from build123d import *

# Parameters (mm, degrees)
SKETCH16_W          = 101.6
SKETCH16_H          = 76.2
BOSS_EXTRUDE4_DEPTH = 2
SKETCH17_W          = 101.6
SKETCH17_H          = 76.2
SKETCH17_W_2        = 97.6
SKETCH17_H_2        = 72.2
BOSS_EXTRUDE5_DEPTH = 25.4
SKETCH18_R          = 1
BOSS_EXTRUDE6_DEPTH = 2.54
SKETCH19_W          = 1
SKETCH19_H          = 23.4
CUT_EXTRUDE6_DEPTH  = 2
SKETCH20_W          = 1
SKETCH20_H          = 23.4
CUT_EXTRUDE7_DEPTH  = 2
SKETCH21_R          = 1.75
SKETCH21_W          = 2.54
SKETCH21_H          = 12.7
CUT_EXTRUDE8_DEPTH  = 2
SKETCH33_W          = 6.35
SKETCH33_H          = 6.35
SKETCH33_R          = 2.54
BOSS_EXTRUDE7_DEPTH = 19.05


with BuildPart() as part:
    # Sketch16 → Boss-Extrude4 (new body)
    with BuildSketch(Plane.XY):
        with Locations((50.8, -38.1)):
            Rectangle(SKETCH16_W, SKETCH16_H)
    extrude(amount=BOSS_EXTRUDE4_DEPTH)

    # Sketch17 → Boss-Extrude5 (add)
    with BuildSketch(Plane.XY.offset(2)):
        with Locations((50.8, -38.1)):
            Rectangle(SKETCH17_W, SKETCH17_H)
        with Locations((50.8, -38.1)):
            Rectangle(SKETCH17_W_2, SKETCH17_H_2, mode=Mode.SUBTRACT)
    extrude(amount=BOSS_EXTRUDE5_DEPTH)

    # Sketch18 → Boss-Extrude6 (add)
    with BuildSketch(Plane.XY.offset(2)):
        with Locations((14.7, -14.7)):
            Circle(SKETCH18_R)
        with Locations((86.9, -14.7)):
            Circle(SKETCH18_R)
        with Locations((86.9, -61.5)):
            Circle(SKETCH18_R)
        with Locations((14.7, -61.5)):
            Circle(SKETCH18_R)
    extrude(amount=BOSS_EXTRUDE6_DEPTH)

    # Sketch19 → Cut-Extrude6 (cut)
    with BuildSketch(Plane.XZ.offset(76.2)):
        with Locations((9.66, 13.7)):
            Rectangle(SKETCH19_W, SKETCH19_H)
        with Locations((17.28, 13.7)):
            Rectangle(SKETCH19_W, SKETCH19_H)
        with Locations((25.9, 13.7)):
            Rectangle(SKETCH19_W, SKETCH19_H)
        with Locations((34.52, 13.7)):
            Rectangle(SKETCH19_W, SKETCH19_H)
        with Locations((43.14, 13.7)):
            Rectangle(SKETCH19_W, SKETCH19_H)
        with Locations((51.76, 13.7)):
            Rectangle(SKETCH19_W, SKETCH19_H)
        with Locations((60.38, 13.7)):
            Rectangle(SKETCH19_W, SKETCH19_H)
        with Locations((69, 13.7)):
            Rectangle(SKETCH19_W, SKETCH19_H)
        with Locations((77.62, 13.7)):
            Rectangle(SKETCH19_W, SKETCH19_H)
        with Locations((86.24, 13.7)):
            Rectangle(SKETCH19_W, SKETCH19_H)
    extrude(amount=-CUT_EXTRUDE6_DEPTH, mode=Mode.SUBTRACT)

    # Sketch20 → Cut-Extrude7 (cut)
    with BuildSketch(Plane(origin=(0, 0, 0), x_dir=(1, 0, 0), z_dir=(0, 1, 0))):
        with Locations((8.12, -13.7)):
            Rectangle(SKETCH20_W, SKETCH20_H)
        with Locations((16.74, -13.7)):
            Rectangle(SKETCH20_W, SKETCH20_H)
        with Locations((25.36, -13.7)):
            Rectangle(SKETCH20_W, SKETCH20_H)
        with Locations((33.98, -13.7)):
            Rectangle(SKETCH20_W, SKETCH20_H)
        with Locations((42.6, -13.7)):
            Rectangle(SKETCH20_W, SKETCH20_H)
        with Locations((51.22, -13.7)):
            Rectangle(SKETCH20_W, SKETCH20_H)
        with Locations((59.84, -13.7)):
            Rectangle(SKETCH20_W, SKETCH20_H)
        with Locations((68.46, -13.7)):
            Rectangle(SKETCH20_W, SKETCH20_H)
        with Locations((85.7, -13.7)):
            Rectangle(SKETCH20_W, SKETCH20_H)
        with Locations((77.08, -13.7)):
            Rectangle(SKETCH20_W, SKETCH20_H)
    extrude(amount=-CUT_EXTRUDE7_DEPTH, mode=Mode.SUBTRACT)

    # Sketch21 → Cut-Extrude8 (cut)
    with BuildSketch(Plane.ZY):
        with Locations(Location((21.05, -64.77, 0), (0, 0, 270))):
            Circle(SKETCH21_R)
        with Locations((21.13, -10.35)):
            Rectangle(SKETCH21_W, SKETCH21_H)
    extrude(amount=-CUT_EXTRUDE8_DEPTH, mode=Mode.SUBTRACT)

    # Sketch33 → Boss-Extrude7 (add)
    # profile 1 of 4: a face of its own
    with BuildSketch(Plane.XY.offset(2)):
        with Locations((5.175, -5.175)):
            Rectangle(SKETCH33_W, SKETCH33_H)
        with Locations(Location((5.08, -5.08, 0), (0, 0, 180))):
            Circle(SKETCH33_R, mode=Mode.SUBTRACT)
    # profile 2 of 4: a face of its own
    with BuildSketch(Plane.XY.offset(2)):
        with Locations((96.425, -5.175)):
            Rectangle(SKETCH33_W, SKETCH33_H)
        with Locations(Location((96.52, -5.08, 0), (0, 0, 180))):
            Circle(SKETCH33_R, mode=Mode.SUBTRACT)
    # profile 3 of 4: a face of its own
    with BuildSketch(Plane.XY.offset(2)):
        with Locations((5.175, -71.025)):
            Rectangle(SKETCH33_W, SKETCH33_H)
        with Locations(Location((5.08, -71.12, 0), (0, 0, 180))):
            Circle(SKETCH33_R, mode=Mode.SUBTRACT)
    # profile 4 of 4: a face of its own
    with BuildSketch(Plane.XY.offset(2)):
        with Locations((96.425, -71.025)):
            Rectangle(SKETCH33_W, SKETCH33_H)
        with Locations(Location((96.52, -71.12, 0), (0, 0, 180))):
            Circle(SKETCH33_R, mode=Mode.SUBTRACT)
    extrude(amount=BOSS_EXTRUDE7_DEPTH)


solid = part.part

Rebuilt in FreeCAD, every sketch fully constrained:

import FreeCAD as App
import Part
import Sketcher
from FreeCAD import Vector
Q = App.Units.Quantity


def add_polygon(sketch, points):
    """Adds a closed chain of lines whose ends are joined by coincident constraints."""
    first, n = sketch.GeometryCount, len(points)
    for a, b in zip(points, points[1:] + points[:1]):
        sketch.addGeometry(Part.LineSegment(App.Vector(*a, 0), App.Vector(*b, 0)), False)
    for i in range(n):
        sketch.addConstraint(Sketcher.Constraint("Coincident", first + i, 2, first + (i + 1) % n, 1))

doc = App.newDocument("Part")
body = doc.addObject("PartDesign::Body", "Body")

# Sketch on XY plane
sketch1 = body.newObject("Sketcher::SketchObject", "Sketch")
sketch1.AttachmentSupport = (doc.getObject("XY_Plane"), [""])
sketch1.MapMode = "FlatFace"
add_polygon(sketch1, [(0, 0), (0, -76.2), (101.6, -76.2), (101.6, 0)])  # lines 0-3
sketch1.addConstraint(Sketcher.Constraint("Vertical", 0))
sketch1.addConstraint(Sketcher.Constraint("Horizontal", 1))
sketch1.addConstraint(Sketcher.Constraint("Vertical", 2))
sketch1.addConstraint(Sketcher.Constraint("Horizontal", 3))
sketch1.addConstraint(Sketcher.Constraint("Coincident", 3, 2, -1, 1))
sketch1.addConstraint(Sketcher.Constraint("DistanceX", 1, 1, 1, 2, Q("4 in")))
sketch1.addConstraint(Sketcher.Constraint("DistanceY", 0, 2, 0, 1, Q("3 in")))
pad1 = body.newObject("PartDesign::Pad", "Pad")
pad1.Profile = sketch1
pad1.Length = 2

# Sketch on XY plane
sketch2 = body.newObject("Sketcher::SketchObject", "Sketch001")
sketch2.AttachmentSupport = (doc.getObject("XY_Plane"), [""])
sketch2.MapMode = "FlatFace"
sketch2.AttachmentOffset = App.Placement(Vector(0, 0, 2), App.Rotation())
add_polygon(sketch2, [(0, 0), (0, -76.2), (101.6, -76.2), (101.6, 0)])  # lines 0-3
add_polygon(sketch2, [(99.6, -74.2), (2, -74.2), (2, -2), (99.6, -2)])  # lines 4-7
sketch2.addConstraint(Sketcher.Constraint("Vertical", 0))
sketch2.addConstraint(Sketcher.Constraint("Horizontal", 1))
sketch2.addConstraint(Sketcher.Constraint("Vertical", 2))
sketch2.addConstraint(Sketcher.Constraint("Horizontal", 3))
sketch2.addConstraint(Sketcher.Constraint("Horizontal", 4))
sketch2.addConstraint(Sketcher.Constraint("Vertical", 5))
sketch2.addConstraint(Sketcher.Constraint("Horizontal", 6))
sketch2.addConstraint(Sketcher.Constraint("Vertical", 7))
sketch2.addConstraint(Sketcher.Constraint("Coincident", 3, 2, -1, 1))
sketch2.addConstraint(Sketcher.Constraint("DistanceX", 1, 1, 1, 2, Q("4 in")))
sketch2.addConstraint(Sketcher.Constraint("DistanceY", 0, 2, 0, 1, Q("3 in")))
sketch2.addConstraint(Sketcher.Constraint("DistanceX", 4, 2, 4, 1, 97.6))
sketch2.addConstraint(Sketcher.Constraint("DistanceY", 5, 1, 5, 2, 72.2))
sketch2.addConstraint(Sketcher.Constraint("DistanceX", -1, 1, 4, 2, 2.0))
sketch2.addConstraint(Sketcher.Constraint("DistanceY", 4, 2, -1, 1, 74.2))
pad2 = body.newObject("PartDesign::Pad", "Pad001")
pad2.Profile = sketch2
pad2.Length = Q("1 in")

# Sketch on XY plane
sketch3 = body.newObject("Sketcher::SketchObject", "Sketch002")
sketch3.AttachmentSupport = (doc.getObject("XY_Plane"), [""])
sketch3.MapMode = "FlatFace"
sketch3.AttachmentOffset = App.Placement(Vector(0, 0, 2), App.Rotation())
sketch3.addGeometry(Part.Circle(Vector(14.7, -14.7, 0), Vector(0, 0, 1), 1), False)
sketch3.addGeometry(Part.Circle(Vector(86.9, -14.7, 0), Vector(0, 0, 1), 1), False)
sketch3.addGeometry(Part.Circle(Vector(86.9, -61.5, 0), Vector(0, 0, 1), 1), False)
sketch3.addGeometry(Part.Circle(Vector(14.7, -61.5, 0), Vector(0, 0, 1), 1), False)
sketch3.addConstraint(Sketcher.Constraint("Equal", 0, 1))
sketch3.addConstraint(Sketcher.Constraint("Equal", 1, 2))
sketch3.addConstraint(Sketcher.Constraint("Equal", 2, 3))
sketch3.addConstraint(Sketcher.Constraint("Horizontal", 0, 3, 1, 3))
sketch3.addConstraint(Sketcher.Constraint("Horizontal", 2, 3, 3, 3))
sketch3.addConstraint(Sketcher.Constraint("Vertical", 1, 3, 2, 3))
sketch3.addConstraint(Sketcher.Constraint("Vertical", 0, 3, 3, 3))
sketch3.addConstraint(Sketcher.Constraint("Diameter", 0, 2.0))
sketch3.addConstraint(Sketcher.Constraint("DistanceX", -1, 1, 0, 3, 14.7))
sketch3.addConstraint(Sketcher.Constraint("DistanceY", 0, 3, -1, 1, 14.7))
sketch3.addConstraint(Sketcher.Constraint("DistanceX", -1, 1, 1, 3, 86.9))
sketch3.addConstraint(Sketcher.Constraint("DistanceY", 2, 3, -1, 1, 61.5))
pad3 = body.newObject("PartDesign::Pad", "Pad002")
pad3.Profile = sketch3
pad3.Length = Q("0.1 in")

# Sketch on XZ plane
sketch4 = body.newObject("Sketcher::SketchObject", "Sketch003")
sketch4.AttachmentSupport = (doc.getObject("XZ_Plane"), [""])
sketch4.MapMode = "FlatFace"
sketch4.AttachmentOffset = App.Placement(Vector(0, 0, 3 * 25.4), App.Rotation())
add_polygon(sketch4, [(9.16, 25.4), (9.16, 2), (10.16, 2), (10.16, 25.4)])  # lines 0-3
add_polygon(sketch4, [(16.78, 25.4), (16.78, 2), (17.78, 2), (17.78, 25.4)])  # lines 4-7
add_polygon(sketch4, [(25.4, 25.4), (25.4, 2), (26.4, 2), (26.4, 25.4)])  # lines 8-11
add_polygon(sketch4, [(34.02, 25.4), (34.02, 2), (35.02, 2), (35.02, 25.4)])  # lines 12-15
add_polygon(sketch4, [(42.64, 25.4), (42.64, 2), (43.64, 2), (43.64, 25.4)])  # lines 16-19
add_polygon(sketch4, [(51.26, 25.4), (51.26, 2), (52.26, 2), (52.26, 25.4)])  # lines 20-23
add_polygon(sketch4, [(59.88, 25.4), (59.88, 2), (60.88, 2), (60.88, 25.4)])  # lines 24-27
add_polygon(sketch4, [(68.5, 25.4), (68.5, 2), (69.5, 2), (69.5, 25.4)])  # lines 28-31
add_polygon(sketch4, [(77.12, 25.4), (77.12, 2), (78.12, 2), (78.12, 25.4)])  # lines 32-35
add_polygon(sketch4, [(85.74, 25.4), (85.74, 2), (86.74, 2), (86.74, 25.4)])  # lines 36-39
sketch4.addConstraint(Sketcher.Constraint("Vertical", 0))
sketch4.addConstraint(Sketcher.Constraint("Horizontal", 1))
sketch4.addConstraint(Sketcher.Constraint("Vertical", 2))
sketch4.addConstraint(Sketcher.Constraint("Horizontal", 3))
sketch4.addConstraint(Sketcher.Constraint("Vertical", 4))
sketch4.addConstraint(Sketcher.Constraint("Horizontal", 5))
sketch4.addConstraint(Sketcher.Constraint("Vertical", 6))
sketch4.addConstraint(Sketcher.Constraint("Horizontal", 7))
sketch4.addConstraint(Sketcher.Constraint("Vertical", 8))
sketch4.addConstraint(Sketcher.Constraint("Horizontal", 9))
sketch4.addConstraint(Sketcher.Constraint("Vertical", 10))
sketch4.addConstraint(Sketcher.Constraint("Horizontal", 11))
sketch4.addConstraint(Sketcher.Constraint("Vertical", 12))
sketch4.addConstraint(Sketcher.Constraint("Horizontal", 13))
sketch4.addConstraint(Sketcher.Constraint("Vertical", 14))
sketch4.addConstraint(Sketcher.Constraint("Horizontal", 15))
sketch4.addConstraint(Sketcher.Constraint("Vertical", 16))
sketch4.addConstraint(Sketcher.Constraint("Horizontal", 17))
sketch4.addConstraint(Sketcher.Constraint("Vertical", 18))
sketch4.addConstraint(Sketcher.Constraint("Horizontal", 19))
sketch4.addConstraint(Sketcher.Constraint("Vertical", 20))
sketch4.addConstraint(Sketcher.Constraint("Horizontal", 21))
sketch4.addConstraint(Sketcher.Constraint("Vertical", 22))
sketch4.addConstraint(Sketcher.Constraint("Horizontal", 23))
sketch4.addConstraint(Sketcher.Constraint("Vertical", 24))
sketch4.addConstraint(Sketcher.Constraint("Horizontal", 25))
sketch4.addConstraint(Sketcher.Constraint("Vertical", 26))
sketch4.addConstraint(Sketcher.Constraint("Horizontal", 27))
sketch4.addConstraint(Sketcher.Constraint("Vertical", 28))
sketch4.addConstraint(Sketcher.Constraint("Horizontal", 29))
sketch4.addConstraint(Sketcher.Constraint("Vertical", 30))
sketch4.addConstraint(Sketcher.Constraint("Horizontal", 31))
sketch4.addConstraint(Sketcher.Constraint("Vertical", 32))
sketch4.addConstraint(Sketcher.Constraint("Horizontal", 33))
sketch4.addConstraint(Sketcher.Constraint("Vertical", 34))
sketch4.addConstraint(Sketcher.Constraint("Horizontal", 35))
sketch4.addConstraint(Sketcher.Constraint("Vertical", 36))
sketch4.addConstraint(Sketcher.Constraint("Horizontal", 37))
sketch4.addConstraint(Sketcher.Constraint("Vertical", 38))
sketch4.addConstraint(Sketcher.Constraint("Horizontal", 39))
sketch4.addConstraint(Sketcher.Constraint("Horizontal", 1, 2, 4, 2))
sketch4.addConstraint(Sketcher.Constraint("Horizontal", 3, 2, 6, 2))
sketch4.addConstraint(Sketcher.Constraint("Horizontal", 5, 2, 8, 2))
sketch4.addConstraint(Sketcher.Constraint("Horizontal", 7, 2, 10, 2))
sketch4.addConstraint(Sketcher.Constraint("Horizontal", 9, 2, 12, 2))
sketch4.addConstraint(Sketcher.Constraint("Horizontal", 11, 2, 14, 2))
sketch4.addConstraint(Sketcher.Constraint("Horizontal", 13, 2, 16, 2))
sketch4.addConstraint(Sketcher.Constraint("Horizontal", 15, 2, 18, 2))
sketch4.addConstraint(Sketcher.Constraint("Horizontal", 17, 2, 20, 2))
sketch4.addConstraint(Sketcher.Constraint("Horizontal", 19, 2, 22, 2))
sketch4.addConstraint(Sketcher.Constraint("Horizontal", 21, 2, 24, 2))
sketch4.addConstraint(Sketcher.Constraint("Horizontal", 23, 2, 26, 2))
sketch4.addConstraint(Sketcher.Constraint("Horizontal", 25, 2, 28, 2))
sketch4.addConstraint(Sketcher.Constraint("Horizontal", 27, 2, 30, 2))
sketch4.addConstraint(Sketcher.Constraint("Horizontal", 29, 2, 32, 2))
sketch4.addConstraint(Sketcher.Constraint("Horizontal", 31, 2, 34, 2))
sketch4.addConstraint(Sketcher.Constraint("Horizontal", 33, 2, 36, 2))
sketch4.addConstraint(Sketcher.Constraint("Horizontal", 35, 2, 38, 2))
sketch4.addConstraint(Sketcher.Constraint("Equal", 3, 5))
sketch4.addConstraint(Sketcher.Constraint("Equal", 7, 9))
sketch4.addConstraint(Sketcher.Constraint("Equal", 11, 13))
sketch4.addConstraint(Sketcher.Constraint("Equal", 15, 17))
sketch4.addConstraint(Sketcher.Constraint("Equal", 19, 21))
sketch4.addConstraint(Sketcher.Constraint("Equal", 23, 25))
sketch4.addConstraint(Sketcher.Constraint("Equal", 27, 29))
sketch4.addConstraint(Sketcher.Constraint("Equal", 31, 33))
sketch4.addConstraint(Sketcher.Constraint("Equal", 35, 37))
sketch4.addConstraint(Sketcher.Constraint("DistanceY", -1, 1, 2, 2, Q("1 in")))
sketch4.addConstraint(Sketcher.Constraint("DistanceX", -1, 1, 8, 2, Q("1 in")))
sketch4.addConstraint(Sketcher.Constraint("DistanceX", -1, 1, 1, 2, Q("0.4 in")))
sketch4.addConstraint(Sketcher.Constraint("DistanceX", -1, 1, 5, 2, Q("0.7 in")))
sketch4.addConstraint(Sketcher.Constraint("DistanceX", 9, 2, 12, 2, Q("0.3 in")))
sketch4.addConstraint(Sketcher.Constraint("DistanceX", 13, 2, 16, 2, Q("0.3 in")))
sketch4.addConstraint(Sketcher.Constraint("DistanceX", 17, 2, 20, 2, Q("0.3 in")))
sketch4.addConstraint(Sketcher.Constraint("DistanceX", 21, 2, 24, 2, Q("0.3 in")))
sketch4.addConstraint(Sketcher.Constraint("DistanceX", 25, 2, 28, 2, Q("0.3 in")))
sketch4.addConstraint(Sketcher.Constraint("DistanceX", 29, 2, 32, 2, Q("0.3 in")))
sketch4.addConstraint(Sketcher.Constraint("DistanceX", 33, 2, 36, 2, Q("0.3 in")))
sketch4.addConstraint(Sketcher.Constraint("DistanceX", 1, 1, 1, 2, 1.0))
sketch4.addConstraint(Sketcher.Constraint("DistanceY", 0, 2, 0, 1, 23.4))
pocket1 = body.newObject("PartDesign::Pocket", "Pocket")
pocket1.Profile = sketch4
pocket1.Length = 2

# Sketch on XZ plane
sketch5 = body.newObject("Sketcher::SketchObject", "Sketch004")
sketch5.AttachmentSupport = (doc.getObject("XZ_Plane"), [""])
sketch5.MapMode = "FlatFace"
add_polygon(sketch5, [(7.62, 2), (7.62, 25.4), (8.62, 25.4), (8.62, 2)])  # lines 0-3
add_polygon(sketch5, [(16.24, 2), (16.24, 25.4), (17.24, 25.4), (17.24, 2)])  # lines 4-7
add_polygon(sketch5, [(24.86, 2), (24.86, 25.4), (25.86, 25.4), (25.86, 2)])  # lines 8-11
add_polygon(sketch5, [(33.48, 2), (33.48, 25.4), (34.48, 25.4), (34.48, 2)])  # lines 12-15
add_polygon(sketch5, [(42.1, 2), (42.1, 25.4), (43.1, 25.4), (43.1, 2)])  # lines 16-19
add_polygon(sketch5, [(50.72, 2), (50.72, 25.4), (51.72, 25.4), (51.72, 2)])  # lines 20-23
add_polygon(sketch5, [(59.34, 2), (59.34, 25.4), (60.34, 25.4), (60.34, 2)])  # lines 24-27
add_polygon(sketch5, [(67.96, 2), (67.96, 25.4), (68.96, 25.4), (68.96, 2)])  # lines 28-31
add_polygon(sketch5, [(85.2, 2), (85.2, 25.4), (86.2, 25.4), (86.2, 2)])  # lines 32-35
add_polygon(sketch5, [(76.58, 2), (76.58, 25.4), (77.58, 25.4), (77.58, 2)])  # lines 36-39
sketch5.addConstraint(Sketcher.Constraint("Vertical", 0))
sketch5.addConstraint(Sketcher.Constraint("Horizontal", 1))
sketch5.addConstraint(Sketcher.Constraint("Vertical", 2))
sketch5.addConstraint(Sketcher.Constraint("Horizontal", 3))
sketch5.addConstraint(Sketcher.Constraint("Vertical", 4))
sketch5.addConstraint(Sketcher.Constraint("Horizontal", 5))
sketch5.addConstraint(Sketcher.Constraint("Vertical", 6))
sketch5.addConstraint(Sketcher.Constraint("Horizontal", 7))
sketch5.addConstraint(Sketcher.Constraint("Vertical", 8))
sketch5.addConstraint(Sketcher.Constraint("Horizontal", 9))
sketch5.addConstraint(Sketcher.Constraint("Vertical", 10))
sketch5.addConstraint(Sketcher.Constraint("Horizontal", 11))
sketch5.addConstraint(Sketcher.Constraint("Vertical", 12))
sketch5.addConstraint(Sketcher.Constraint("Horizontal", 13))
sketch5.addConstraint(Sketcher.Constraint("Vertical", 14))
sketch5.addConstraint(Sketcher.Constraint("Horizontal", 15))
sketch5.addConstraint(Sketcher.Constraint("Vertical", 16))
sketch5.addConstraint(Sketcher.Constraint("Horizontal", 17))
sketch5.addConstraint(Sketcher.Constraint("Vertical", 18))
sketch5.addConstraint(Sketcher.Constraint("Horizontal", 19))
sketch5.addConstraint(Sketcher.Constraint("Vertical", 20))
sketch5.addConstraint(Sketcher.Constraint("Horizontal", 21))
sketch5.addConstraint(Sketcher.Constraint("Vertical", 22))
sketch5.addConstraint(Sketcher.Constraint("Horizontal", 23))
sketch5.addConstraint(Sketcher.Constraint("Vertical", 24))
sketch5.addConstraint(Sketcher.Constraint("Horizontal", 25))
sketch5.addConstraint(Sketcher.Constraint("Vertical", 26))
sketch5.addConstraint(Sketcher.Constraint("Horizontal", 27))
sketch5.addConstraint(Sketcher.Constraint("Vertical", 28))
sketch5.addConstraint(Sketcher.Constraint("Horizontal", 29))
sketch5.addConstraint(Sketcher.Constraint("Vertical", 30))
sketch5.addConstraint(Sketcher.Constraint("Horizontal", 31))
sketch5.addConstraint(Sketcher.Constraint("Vertical", 32))
sketch5.addConstraint(Sketcher.Constraint("Horizontal", 33))
sketch5.addConstraint(Sketcher.Constraint("Vertical", 34))
sketch5.addConstraint(Sketcher.Constraint("Horizontal", 35))
sketch5.addConstraint(Sketcher.Constraint("Vertical", 36))
sketch5.addConstraint(Sketcher.Constraint("Horizontal", 37))
sketch5.addConstraint(Sketcher.Constraint("Vertical", 38))
sketch5.addConstraint(Sketcher.Constraint("Horizontal", 39))
sketch5.addConstraint(Sketcher.Constraint("Horizontal", 1, 2, 4, 2))
sketch5.addConstraint(Sketcher.Constraint("Horizontal", 3, 2, 6, 2))
sketch5.addConstraint(Sketcher.Constraint("Horizontal", 5, 2, 8, 2))
sketch5.addConstraint(Sketcher.Constraint("Horizontal", 7, 2, 10, 2))
sketch5.addConstraint(Sketcher.Constraint("Horizontal", 9, 2, 12, 2))
sketch5.addConstraint(Sketcher.Constraint("Horizontal", 11, 2, 14, 2))
sketch5.addConstraint(Sketcher.Constraint("Horizontal", 13, 2, 16, 2))
sketch5.addConstraint(Sketcher.Constraint("Horizontal", 15, 2, 18, 2))
sketch5.addConstraint(Sketcher.Constraint("Horizontal", 17, 2, 20, 2))
sketch5.addConstraint(Sketcher.Constraint("Horizontal", 19, 2, 22, 2))
sketch5.addConstraint(Sketcher.Constraint("Horizontal", 21, 2, 24, 2))
sketch5.addConstraint(Sketcher.Constraint("Horizontal", 23, 2, 26, 2))
sketch5.addConstraint(Sketcher.Constraint("Horizontal", 25, 2, 28, 2))
sketch5.addConstraint(Sketcher.Constraint("Horizontal", 27, 2, 30, 2))
sketch5.addConstraint(Sketcher.Constraint("Horizontal", 29, 2, 32, 2))
sketch5.addConstraint(Sketcher.Constraint("Horizontal", 31, 2, 34, 2))
sketch5.addConstraint(Sketcher.Constraint("Horizontal", 33, 2, 36, 2))
sketch5.addConstraint(Sketcher.Constraint("Horizontal", 35, 2, 38, 2))
sketch5.addConstraint(Sketcher.Constraint("Equal", 3, 5))
sketch5.addConstraint(Sketcher.Constraint("Equal", 7, 9))
sketch5.addConstraint(Sketcher.Constraint("Equal", 11, 13))
sketch5.addConstraint(Sketcher.Constraint("Equal", 15, 17))
sketch5.addConstraint(Sketcher.Constraint("Equal", 19, 21))
sketch5.addConstraint(Sketcher.Constraint("Equal", 23, 25))
sketch5.addConstraint(Sketcher.Constraint("Equal", 27, 29))
sketch5.addConstraint(Sketcher.Constraint("Equal", 31, 33))
sketch5.addConstraint(Sketcher.Constraint("Equal", 35, 37))
sketch5.addConstraint(Sketcher.Constraint("DistanceY", -1, 1, 0, 2, Q("1 in")))
sketch5.addConstraint(Sketcher.Constraint("DistanceX", -1, 1, 0, 2, Q("0.3 in")))
sketch5.addConstraint(Sketcher.Constraint("DistanceX", 1, 2, 4, 2, Q("0.3 in")))
sketch5.addConstraint(Sketcher.Constraint("DistanceX", 5, 2, 8, 2, Q("0.3 in")))
sketch5.addConstraint(Sketcher.Constraint("DistanceX", 9, 2, 12, 2, Q("0.3 in")))
sketch5.addConstraint(Sketcher.Constraint("DistanceX", 13, 2, 16, 2, Q("0.3 in")))
sketch5.addConstraint(Sketcher.Constraint("DistanceX", 17, 2, 20, 2, Q("0.3 in")))
sketch5.addConstraint(Sketcher.Constraint("DistanceX", 21, 2, 24, 2, Q("0.3 in")))
sketch5.addConstraint(Sketcher.Constraint("DistanceX", 25, 2, 28, 2, Q("0.3 in")))
sketch5.addConstraint(Sketcher.Constraint("DistanceX", 29, 2, 36, 2, Q("0.3 in")))
sketch5.addConstraint(Sketcher.Constraint("DistanceX", 37, 2, 32, 2, Q("0.3 in")))
sketch5.addConstraint(Sketcher.Constraint("DistanceX", 1, 1, 1, 2, 1.0))
sketch5.addConstraint(Sketcher.Constraint("DistanceY", 0, 1, 0, 2, 23.4))
pocket2 = body.newObject("PartDesign::Pocket", "Pocket001")
pocket2.Profile = sketch5
pocket2.Length = 2
pocket2.Reversed = True

# Sketch on YZ plane
sketch6 = body.newObject("Sketcher::SketchObject", "Sketch005")
sketch6.AttachmentSupport = (doc.getObject("YZ_Plane"), [""])
sketch6.MapMode = "FlatFace"
sketch6.addGeometry(Part.Circle(Vector(-64.77, 21.05, 0), Vector(0, 0, 1), 1.75), False)  # 0
add_polygon(sketch6, [(-4, 19.86), (-16.7, 19.86), (-16.7, 22.4), (-4, 22.4)])  # lines 1-4
sketch6.addConstraint(Sketcher.Constraint("Horizontal", 1))
sketch6.addConstraint(Sketcher.Constraint("Vertical", 2))
sketch6.addConstraint(Sketcher.Constraint("Horizontal", 3))
sketch6.addConstraint(Sketcher.Constraint("Vertical", 4))
sketch6.addConstraint(Sketcher.Constraint("DistanceX", 1, 2, 1, 1, Q("0.5 in")))
sketch6.addConstraint(Sketcher.Constraint("DistanceY", 2, 1, 2, 2, Q("0.1 in")))
sketch6.addConstraint(Sketcher.Constraint("Diameter", 0, 3.5))
sketch6.addConstraint(Sketcher.Constraint("DistanceX", 0, 3, -1, 1, Q("2.55 in")))
sketch6.addConstraint(Sketcher.Constraint("DistanceY", -1, 1, 0, 3, 21.05))
sketch6.addConstraint(Sketcher.Constraint("DistanceX", 1, 2, -1, 1, 16.7))
sketch6.addConstraint(Sketcher.Constraint("DistanceY", -1, 1, 1, 2, 19.86))
pocket3 = body.newObject("PartDesign::Pocket", "Pocket002")
pocket3.Profile = sketch6
pocket3.Length = 2
pocket3.Reversed = True

# Sketch on XY plane
sketch7 = body.newObject("Sketcher::SketchObject", "Sketch006")
sketch7.AttachmentSupport = (doc.getObject("XY_Plane"), [""])
sketch7.MapMode = "FlatFace"
sketch7.AttachmentOffset = App.Placement(Vector(0, 0, 2), App.Rotation())
add_polygon(sketch7, [(2, -2), (2, -8.35), (8.35, -8.35), (8.35, -2)])  # lines 0-3
sketch7.addGeometry(Part.Circle(Vector(5.08, -5.08, 0), Vector(0, 0, 1), 2.54), False)  # 4
add_polygon(sketch7, [(93.25, -2), (93.25, -8.35), (99.6, -8.35), (99.6, -2)])  # lines 5-8
sketch7.addGeometry(Part.Circle(Vector(96.52, -5.08, 0), Vector(0, 0, 1), 2.54), False)  # 9
add_polygon(sketch7, [(2, -67.85), (2, -74.2), (8.35, -74.2), (8.35, -67.85)])  # lines 10-13
sketch7.addGeometry(Part.Circle(Vector(5.08, -71.12, 0), Vector(0, 0, 1), 2.54), False)  # 14
add_polygon(sketch7, [(93.25, -67.85), (93.25, -74.2), (99.6, -74.2), (99.6, -67.85)])  # lines 15-18
sketch7.addGeometry(Part.Circle(Vector(96.52, -71.12, 0), Vector(0, 0, 1), 2.54), False)  # 19
sketch7.addConstraint(Sketcher.Constraint("Vertical", 0))
sketch7.addConstraint(Sketcher.Constraint("Horizontal", 1))
sketch7.addConstraint(Sketcher.Constraint("Vertical", 2))
sketch7.addConstraint(Sketcher.Constraint("Horizontal", 3))
sketch7.addConstraint(Sketcher.Constraint("Vertical", 5))
sketch7.addConstraint(Sketcher.Constraint("Horizontal", 6))
sketch7.addConstraint(Sketcher.Constraint("Vertical", 7))
sketch7.addConstraint(Sketcher.Constraint("Horizontal", 8))
sketch7.addConstraint(Sketcher.Constraint("Vertical", 10))
sketch7.addConstraint(Sketcher.Constraint("Horizontal", 11))
sketch7.addConstraint(Sketcher.Constraint("Vertical", 12))
sketch7.addConstraint(Sketcher.Constraint("Horizontal", 13))
sketch7.addConstraint(Sketcher.Constraint("Vertical", 15))
sketch7.addConstraint(Sketcher.Constraint("Horizontal", 16))
sketch7.addConstraint(Sketcher.Constraint("Vertical", 17))
sketch7.addConstraint(Sketcher.Constraint("Horizontal", 18))
sketch7.addConstraint(Sketcher.Constraint("Equal", 4, 9))
sketch7.addConstraint(Sketcher.Constraint("Equal", 9, 14))
sketch7.addConstraint(Sketcher.Constraint("Equal", 14, 19))
sketch7.addConstraint(Sketcher.Constraint("Horizontal", 4, 3, 9, 3))
sketch7.addConstraint(Sketcher.Constraint("Horizontal", 14, 3, 19, 3))
sketch7.addConstraint(Sketcher.Constraint("Horizontal", 1, 2, 5, 2))
sketch7.addConstraint(Sketcher.Constraint("Horizontal", 3, 2, 7, 2))
sketch7.addConstraint(Sketcher.Constraint("Horizontal", 11, 2, 15, 2))
sketch7.addConstraint(Sketcher.Constraint("Horizontal", 13, 2, 17, 2))
sketch7.addConstraint(Sketcher.Constraint("Vertical", 4, 3, 14, 3))
sketch7.addConstraint(Sketcher.Constraint("Vertical", 9, 3, 19, 3))
sketch7.addConstraint(Sketcher.Constraint("Vertical", 3, 2, 10, 2))
sketch7.addConstraint(Sketcher.Constraint("Vertical", 2, 2, 11, 2))
sketch7.addConstraint(Sketcher.Constraint("Vertical", 8, 2, 15, 2))
sketch7.addConstraint(Sketcher.Constraint("Vertical", 7, 2, 16, 2))
sketch7.addConstraint(Sketcher.Constraint("Equal", 3, 6))
sketch7.addConstraint(Sketcher.Constraint("Equal", 18, 0))
sketch7.addConstraint(Sketcher.Constraint("Equal", 7, 10))
sketch7.addConstraint(Sketcher.Constraint("Diameter", 4, Q("0.2 in")))
sketch7.addConstraint(Sketcher.Constraint("DistanceX", 1, 1, 1, 2, Q("0.25 in")))
sketch7.addConstraint(Sketcher.Constraint("DistanceX", -1, 1, 4, 3, Q("0.2 in")))
sketch7.addConstraint(Sketcher.Constraint("DistanceY", 4, 3, -1, 1, Q("0.2 in")))
sketch7.addConstraint(Sketcher.Constraint("DistanceX", -1, 1, 9, 3, Q("3.8 in")))
sketch7.addConstraint(Sketcher.Constraint("DistanceY", 14, 3, -1, 1, Q("2.8 in")))
sketch7.addConstraint(Sketcher.Constraint("DistanceX", -1, 1, 0, 2, 2.0))
sketch7.addConstraint(Sketcher.Constraint("DistanceY", 0, 2, -1, 1, 8.35))
sketch7.addConstraint(Sketcher.Constraint("DistanceX", -1, 1, 5, 2, 93.25))
sketch7.addConstraint(Sketcher.Constraint("DistanceY", 10, 2, -1, 1, 74.2))
pad4 = body.newObject("PartDesign::Pad", "Pad003")
pad4.Profile = sketch7
pad4.Length = Q("0.75 in")

doc.recompute()
